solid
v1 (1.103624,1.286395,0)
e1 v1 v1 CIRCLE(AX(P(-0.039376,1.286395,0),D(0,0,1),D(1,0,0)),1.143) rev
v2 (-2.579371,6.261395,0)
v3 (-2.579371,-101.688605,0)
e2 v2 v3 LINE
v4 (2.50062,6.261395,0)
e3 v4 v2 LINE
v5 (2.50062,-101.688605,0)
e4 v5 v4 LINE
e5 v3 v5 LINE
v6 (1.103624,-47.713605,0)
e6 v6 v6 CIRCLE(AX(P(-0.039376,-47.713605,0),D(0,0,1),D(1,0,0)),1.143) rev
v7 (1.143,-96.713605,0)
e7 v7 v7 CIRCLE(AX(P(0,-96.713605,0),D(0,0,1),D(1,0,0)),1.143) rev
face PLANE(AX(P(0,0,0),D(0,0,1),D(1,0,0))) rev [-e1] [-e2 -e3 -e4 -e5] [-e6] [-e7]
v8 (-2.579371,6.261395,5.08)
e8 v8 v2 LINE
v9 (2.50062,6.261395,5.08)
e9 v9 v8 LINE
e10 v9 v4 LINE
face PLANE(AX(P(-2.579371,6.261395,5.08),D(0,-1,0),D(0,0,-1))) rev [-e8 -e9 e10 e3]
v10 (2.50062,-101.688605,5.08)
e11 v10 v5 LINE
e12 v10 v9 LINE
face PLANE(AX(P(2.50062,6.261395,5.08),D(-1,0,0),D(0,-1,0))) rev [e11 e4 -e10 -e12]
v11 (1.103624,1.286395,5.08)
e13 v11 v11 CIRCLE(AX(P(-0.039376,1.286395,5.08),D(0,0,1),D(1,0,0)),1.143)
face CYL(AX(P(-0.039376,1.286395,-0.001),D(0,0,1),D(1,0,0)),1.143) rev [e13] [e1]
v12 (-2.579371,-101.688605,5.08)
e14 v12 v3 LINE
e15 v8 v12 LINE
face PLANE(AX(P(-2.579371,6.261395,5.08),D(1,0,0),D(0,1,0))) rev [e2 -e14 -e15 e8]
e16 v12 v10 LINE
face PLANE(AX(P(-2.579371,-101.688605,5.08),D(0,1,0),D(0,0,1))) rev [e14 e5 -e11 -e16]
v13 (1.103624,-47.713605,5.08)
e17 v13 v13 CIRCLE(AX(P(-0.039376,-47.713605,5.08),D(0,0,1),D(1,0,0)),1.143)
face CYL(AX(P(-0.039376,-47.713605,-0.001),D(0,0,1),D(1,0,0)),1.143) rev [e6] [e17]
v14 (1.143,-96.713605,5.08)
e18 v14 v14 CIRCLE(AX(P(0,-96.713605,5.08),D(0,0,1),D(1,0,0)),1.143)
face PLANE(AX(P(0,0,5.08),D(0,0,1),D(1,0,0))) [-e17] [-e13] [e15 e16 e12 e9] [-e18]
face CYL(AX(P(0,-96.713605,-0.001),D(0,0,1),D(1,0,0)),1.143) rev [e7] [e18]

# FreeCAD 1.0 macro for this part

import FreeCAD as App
import Part
import Sketcher
from FreeCAD import Vector
Q = App.Units.Quantity


def add_polygon(sketch, points):
    """Adds a closed chain of lines whose ends are joined by coincident constraints."""
    first, n = sketch.GeometryCount, len(points)
    for a, b in zip(points, points[1:] + points[:1]):
        sketch.addGeometry(Part.LineSegment(App.Vector(*a, 0), App.Vector(*b, 0)), False)
    for i in range(n):
        sketch.addConstraint(Sketcher.Constraint("Coincident", first + i, 2, first + (i + 1) % n, 1))

doc = App.newDocument("Part")
params = doc.addObject("Spreadsheet::Sheet", "Params")
for row, (alias, value) in enumerate([
    ("sketch1_height", "4.25 in"),
    ("pad1_length", "0.2 in"),
    ("sketch2_diameter", "0.09 in"),
    ("sketch3_diameter", "0.09 in"),
    ("sketch4_diameter", "0.09 in"),
], start=1):
    params.set(f"A{row}", alias)
    params.set(f"B{row}", "=" + value)
    params.setAlias(f"B{row}", alias)

body = doc.addObject("PartDesign::Body", "Body")

# Sketch on XY plane
sketch1 = body.newObject("Sketcher::SketchObject", "Sketch")
sketch1.AttachmentSupport = (doc.getObject("XY_Plane"), [""])
sketch1.MapMode = "FlatFace"
add_polygon(sketch1, [(-2.579371, 6.261395), (-2.579371, -101.688605), (2.50062, -101.688605), (2.50062, 6.261395)])  # lines 0-3
sketch1.addConstraint([
    Sketcher.Constraint("Vertical", 0),
    Sketcher.Constraint("Horizontal", 1),
    Sketcher.Constraint("Vertical", 2),
    Sketcher.Constraint("Horizontal", 3),
    Sketcher.Constraint("DistanceY", 0, 2, 0, 1, Q("4.25 in")),
    Sketcher.Constraint("DistanceX", 1, 1, 1, 2, Q("5.079991 mm")),
    Sketcher.Constraint("DistanceX", 0, 2, -1, 1, Q("2.579371 mm")),
    Sketcher.Constraint("DistanceY", 0, 2, -1, 1, Q("101.688605 mm")),
])
sketch1.setExpression("Constraints[8]", "Params.sketch1_height")
pad1 = body.newObject("PartDesign::Pad", "Pad")
pad1.Profile = sketch1
pad1.setExpression("Length", "Params.pad1_length")

# Sketch on XY plane
sketch2 = body.newObject("Sketcher::SketchObject", "Sketch001")
sketch2.AttachmentSupport = (doc.getObject("XY_Plane"), [""])
sketch2.MapMode = "FlatFace"
sketch2.AttachmentOffset = App.Placement(Vector(0, 0, 0.2 * 25.4), App.Rotation())
sketch2.addGeometry(Part.Circle(Vector(-0.039376, -47.713605, 0), Vector(0, 0, 1), 1.143), False)
sketch2.addConstraint([
    Sketcher.Constraint("Diameter", 0, Q("0.09 in")),
    Sketcher.Constraint("DistanceX", 0, 3, -1, 1, Q("0.039376 mm")),
    Sketcher.Constraint("DistanceY", 0, 3, -1, 1, Q("47.713605 mm")),
])
sketch2.setExpression("Constraints[0]", "Params.sketch2_diameter")
pocket1 = body.newObject("PartDesign::Pocket", "Pocket")
pocket1.Profile = sketch2
pocket1.Type = "UpToFirst"

# Sketch on XY plane
sketch3 = body.newObject("Sketcher::SketchObject", "Sketch002")
sketch3.AttachmentSupport = (doc.getObject("XY_Plane"), [""])
sketch3.MapMode = "FlatFace"
sketch3.AttachmentOffset = App.Placement(Vector(0, 0, 0.2 * 25.4), App.Rotation())
sketch3.addGeometry(Part.Circle(Vector(-0.039376, 1.286395, 0), Vector(0, 0, 1), 1.143), False)
sketch3.addConstraint([
    Sketcher.Constraint("Diameter", 0, Q("0.09 in")),
    Sketcher.Constraint("DistanceX", 0, 3, -1, 1, Q("0.039376 mm")),
    Sketcher.Constraint("DistanceY", -1, 1, 0, 3, Q("1.286395 mm")),
])
sketch3.setExpression("Constraints[0]", "Params.sketch3_diameter")
pocket2 = body.newObject("PartDesign::Pocket", "Pocket001")
pocket2.Profile = sketch3
pocket2.Type = "UpToFirst"

# Sketch on XY plane
sketch4 = body.newObject("Sketcher::SketchObject", "Sketch003")
sketch4.AttachmentSupport = (doc.getObject("XY_Plane"), [""])
sketch4.MapMode = "FlatFace"
sketch4.AttachmentOffset = App.Placement(Vector(0, 0, 0.2 * 25.4), App.Rotation())
sketch4.addGeometry(Part.Circle(Vector(0, -96.713605, 0), Vector(0, 0, 1), 1.143), False)
sketch4.addConstraint([
    Sketcher.Constraint("PointOnObject", 0, 3, -2),
    Sketcher.Constraint("Diameter", 0, Q("0.09 in")),
    Sketcher.Constraint("DistanceY", 0, 3, -1, 1, Q("96.713605 mm")),
])
sketch4.setExpression("Constraints[1]", "Params.sketch4_diameter")
pocket3 = body.newObject("PartDesign::Pocket", "Pocket002")
pocket3.Profile = sketch4
pocket3.Type = "UpToFirst"

doc.recompute()
